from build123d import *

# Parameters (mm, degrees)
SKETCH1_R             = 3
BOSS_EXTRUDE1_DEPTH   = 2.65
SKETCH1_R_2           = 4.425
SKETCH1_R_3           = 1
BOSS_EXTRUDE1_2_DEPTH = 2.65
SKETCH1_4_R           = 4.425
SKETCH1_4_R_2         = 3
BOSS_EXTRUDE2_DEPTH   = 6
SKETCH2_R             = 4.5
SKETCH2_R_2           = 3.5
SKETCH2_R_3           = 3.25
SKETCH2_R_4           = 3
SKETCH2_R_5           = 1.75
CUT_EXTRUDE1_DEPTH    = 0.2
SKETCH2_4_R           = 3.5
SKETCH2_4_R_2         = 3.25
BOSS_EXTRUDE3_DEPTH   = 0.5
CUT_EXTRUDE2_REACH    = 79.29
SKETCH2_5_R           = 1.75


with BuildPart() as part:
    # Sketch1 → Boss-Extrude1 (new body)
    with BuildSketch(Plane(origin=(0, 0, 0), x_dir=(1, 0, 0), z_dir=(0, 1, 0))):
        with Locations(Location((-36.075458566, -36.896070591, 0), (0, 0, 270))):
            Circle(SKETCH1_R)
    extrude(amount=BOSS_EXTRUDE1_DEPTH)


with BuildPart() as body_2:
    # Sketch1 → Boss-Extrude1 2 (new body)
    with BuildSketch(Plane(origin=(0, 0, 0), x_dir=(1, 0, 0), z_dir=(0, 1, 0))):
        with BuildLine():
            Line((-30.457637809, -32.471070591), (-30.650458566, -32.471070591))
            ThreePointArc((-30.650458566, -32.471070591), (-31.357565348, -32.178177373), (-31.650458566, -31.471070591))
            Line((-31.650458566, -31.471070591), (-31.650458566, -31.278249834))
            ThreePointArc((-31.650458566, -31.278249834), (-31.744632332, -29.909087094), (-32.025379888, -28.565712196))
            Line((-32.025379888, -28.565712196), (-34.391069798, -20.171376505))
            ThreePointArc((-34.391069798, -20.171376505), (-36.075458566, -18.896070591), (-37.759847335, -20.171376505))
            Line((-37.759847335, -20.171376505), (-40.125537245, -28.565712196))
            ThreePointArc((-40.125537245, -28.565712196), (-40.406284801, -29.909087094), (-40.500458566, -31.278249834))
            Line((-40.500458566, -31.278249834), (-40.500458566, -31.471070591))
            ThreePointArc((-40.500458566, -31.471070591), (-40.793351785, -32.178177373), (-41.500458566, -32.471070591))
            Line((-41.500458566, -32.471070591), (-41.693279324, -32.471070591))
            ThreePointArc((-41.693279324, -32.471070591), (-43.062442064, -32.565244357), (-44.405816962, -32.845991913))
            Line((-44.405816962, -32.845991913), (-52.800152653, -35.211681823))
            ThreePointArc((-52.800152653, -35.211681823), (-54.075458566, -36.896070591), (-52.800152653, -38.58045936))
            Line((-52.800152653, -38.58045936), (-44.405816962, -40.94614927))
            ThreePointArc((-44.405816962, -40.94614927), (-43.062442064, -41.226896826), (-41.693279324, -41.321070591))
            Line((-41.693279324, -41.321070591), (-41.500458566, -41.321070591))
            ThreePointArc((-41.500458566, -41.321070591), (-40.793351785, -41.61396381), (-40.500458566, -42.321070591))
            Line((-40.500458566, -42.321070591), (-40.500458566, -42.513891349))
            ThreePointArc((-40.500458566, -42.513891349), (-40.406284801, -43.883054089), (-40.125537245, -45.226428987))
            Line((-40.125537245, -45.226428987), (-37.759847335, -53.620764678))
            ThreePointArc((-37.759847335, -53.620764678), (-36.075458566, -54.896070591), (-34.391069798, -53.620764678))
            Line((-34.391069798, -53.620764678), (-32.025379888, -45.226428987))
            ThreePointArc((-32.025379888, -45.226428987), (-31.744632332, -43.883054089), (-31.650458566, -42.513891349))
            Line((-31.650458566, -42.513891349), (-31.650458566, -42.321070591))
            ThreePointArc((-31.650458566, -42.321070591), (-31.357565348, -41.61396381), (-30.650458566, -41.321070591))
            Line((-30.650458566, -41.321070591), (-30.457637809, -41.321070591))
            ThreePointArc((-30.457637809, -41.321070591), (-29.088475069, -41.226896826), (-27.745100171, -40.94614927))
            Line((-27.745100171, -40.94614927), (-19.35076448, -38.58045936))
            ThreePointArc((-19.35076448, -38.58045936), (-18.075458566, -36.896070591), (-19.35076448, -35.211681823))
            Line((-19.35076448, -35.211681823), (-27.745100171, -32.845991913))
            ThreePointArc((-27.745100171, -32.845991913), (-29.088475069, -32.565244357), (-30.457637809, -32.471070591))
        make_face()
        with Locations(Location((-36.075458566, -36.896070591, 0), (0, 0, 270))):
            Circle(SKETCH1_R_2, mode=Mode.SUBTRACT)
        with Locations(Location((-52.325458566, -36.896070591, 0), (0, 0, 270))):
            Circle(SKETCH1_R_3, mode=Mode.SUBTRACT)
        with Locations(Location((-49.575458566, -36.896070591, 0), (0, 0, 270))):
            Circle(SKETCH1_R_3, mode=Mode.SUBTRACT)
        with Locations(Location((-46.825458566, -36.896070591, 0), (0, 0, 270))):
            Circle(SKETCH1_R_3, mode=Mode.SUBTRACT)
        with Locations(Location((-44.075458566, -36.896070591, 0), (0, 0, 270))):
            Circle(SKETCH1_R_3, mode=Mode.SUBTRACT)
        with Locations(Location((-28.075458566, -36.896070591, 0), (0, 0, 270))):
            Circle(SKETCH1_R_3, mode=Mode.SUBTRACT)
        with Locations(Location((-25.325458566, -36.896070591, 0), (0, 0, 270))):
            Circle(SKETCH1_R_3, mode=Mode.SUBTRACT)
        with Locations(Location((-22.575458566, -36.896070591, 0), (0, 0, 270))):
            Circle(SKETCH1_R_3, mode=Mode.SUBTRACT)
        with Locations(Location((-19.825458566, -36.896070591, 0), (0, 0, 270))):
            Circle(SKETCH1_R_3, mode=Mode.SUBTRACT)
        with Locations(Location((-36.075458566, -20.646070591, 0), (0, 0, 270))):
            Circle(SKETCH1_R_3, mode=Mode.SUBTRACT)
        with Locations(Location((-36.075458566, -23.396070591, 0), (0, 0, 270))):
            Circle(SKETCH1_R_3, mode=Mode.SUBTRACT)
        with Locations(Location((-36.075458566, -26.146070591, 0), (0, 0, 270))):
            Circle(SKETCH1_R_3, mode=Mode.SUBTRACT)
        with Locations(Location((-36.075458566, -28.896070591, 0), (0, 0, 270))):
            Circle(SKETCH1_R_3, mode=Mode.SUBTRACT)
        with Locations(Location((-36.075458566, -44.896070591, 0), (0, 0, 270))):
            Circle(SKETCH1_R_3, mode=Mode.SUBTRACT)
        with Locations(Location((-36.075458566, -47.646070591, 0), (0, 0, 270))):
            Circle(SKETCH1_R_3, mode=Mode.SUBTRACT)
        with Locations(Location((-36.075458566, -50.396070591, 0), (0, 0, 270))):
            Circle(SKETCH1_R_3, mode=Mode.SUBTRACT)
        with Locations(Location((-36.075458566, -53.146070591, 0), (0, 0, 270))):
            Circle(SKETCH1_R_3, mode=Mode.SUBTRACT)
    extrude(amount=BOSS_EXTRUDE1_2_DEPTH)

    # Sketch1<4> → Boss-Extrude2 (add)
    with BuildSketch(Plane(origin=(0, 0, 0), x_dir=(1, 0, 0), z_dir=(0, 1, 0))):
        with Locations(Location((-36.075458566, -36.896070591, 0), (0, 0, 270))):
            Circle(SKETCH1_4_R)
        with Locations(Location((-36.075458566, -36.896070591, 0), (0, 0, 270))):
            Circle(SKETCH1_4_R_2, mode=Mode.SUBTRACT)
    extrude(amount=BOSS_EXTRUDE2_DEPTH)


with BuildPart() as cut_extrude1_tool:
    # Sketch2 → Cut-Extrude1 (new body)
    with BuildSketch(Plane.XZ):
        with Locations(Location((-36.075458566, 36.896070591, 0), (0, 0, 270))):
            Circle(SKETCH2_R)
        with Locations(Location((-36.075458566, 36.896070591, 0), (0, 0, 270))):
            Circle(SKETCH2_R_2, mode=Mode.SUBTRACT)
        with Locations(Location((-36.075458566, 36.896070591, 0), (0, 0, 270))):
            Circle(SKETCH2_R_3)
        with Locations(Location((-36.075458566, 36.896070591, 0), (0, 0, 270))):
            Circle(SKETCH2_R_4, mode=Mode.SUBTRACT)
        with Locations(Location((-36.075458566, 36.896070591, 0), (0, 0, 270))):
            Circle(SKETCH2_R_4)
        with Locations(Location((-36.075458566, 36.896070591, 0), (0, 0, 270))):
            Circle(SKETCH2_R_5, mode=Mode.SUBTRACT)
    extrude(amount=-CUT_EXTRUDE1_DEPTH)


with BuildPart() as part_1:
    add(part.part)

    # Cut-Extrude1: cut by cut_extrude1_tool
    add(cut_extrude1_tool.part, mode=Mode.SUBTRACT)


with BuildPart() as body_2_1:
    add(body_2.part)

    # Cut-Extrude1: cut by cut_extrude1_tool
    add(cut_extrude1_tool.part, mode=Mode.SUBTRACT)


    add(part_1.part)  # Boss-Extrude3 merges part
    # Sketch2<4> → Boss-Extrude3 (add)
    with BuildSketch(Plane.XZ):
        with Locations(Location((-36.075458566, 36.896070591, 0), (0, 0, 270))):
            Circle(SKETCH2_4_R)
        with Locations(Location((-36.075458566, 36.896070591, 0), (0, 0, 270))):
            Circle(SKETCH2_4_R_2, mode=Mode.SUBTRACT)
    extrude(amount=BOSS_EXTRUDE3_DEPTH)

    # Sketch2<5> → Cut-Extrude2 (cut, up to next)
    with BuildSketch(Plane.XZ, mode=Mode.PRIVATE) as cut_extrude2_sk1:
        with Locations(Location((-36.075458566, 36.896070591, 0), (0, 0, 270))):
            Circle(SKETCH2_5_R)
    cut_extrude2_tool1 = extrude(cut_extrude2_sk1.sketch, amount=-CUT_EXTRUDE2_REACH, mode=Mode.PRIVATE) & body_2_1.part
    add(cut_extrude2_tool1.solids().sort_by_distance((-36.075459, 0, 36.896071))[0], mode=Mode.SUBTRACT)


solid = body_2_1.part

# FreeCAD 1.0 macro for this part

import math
import FreeCAD as App
import Part
import Sketcher
from FreeCAD import Vector

doc = App.newDocument("Part")
body = doc.addObject("PartDesign::Body", "Body")

# Sketch on XZ plane
sketch1 = body.newObject("Sketcher::SketchObject", "Sketch")
sketch1.AttachmentSupport = (doc.getObject("XZ_Plane"), [""])
sketch1.MapMode = "FlatFace"
sketch1.addGeometry(Part.Circle(Vector(-36.1, 36.9, 0), Vector(0, 0, 1), 3), False)
sketch1.addConstraint(Sketcher.Constraint("Diameter", 0, 6.0))
sketch1.addConstraint(Sketcher.Constraint("DistanceX", 0, 3, -1, 1, 36.075459))
sketch1.addConstraint(Sketcher.Constraint("DistanceY", -1, 1, 0, 3, 36.896071))
pad1 = body.newObject("PartDesign::Pad", "Pad")
pad1.Profile = sketch1
pad1.Length = 2.65
pad1.Reversed = True
body2 = doc.addObject("PartDesign::Body", "Body001")

# Sketch on XZ plane
sketch2 = body2.newObject("Sketcher::SketchObject", "Sketch001")
sketch2.AttachmentSupport = (doc.getObject("XZ_Plane001"), [""])
sketch2.MapMode = "FlatFace"
sketch2.addGeometry(Part.LineSegment(Vector(-30.46, 32.47, 0), Vector(-30.65, 32.47, 0)), False)
sketch2.addGeometry(Part.ArcOfCircle(Part.Circle(Vector(-30.65, 31.47, 0), Vector(0, 0, 1), 1), math.radians(90), math.radians(180)), False)
sketch2.addGeometry(Part.LineSegment(Vector(-31.65, 31.47, 0), Vector(-31.65, 31.28, 0)), False)
sketch2.addGeometry(Part.ArcOfCircle(Part.Circle(Vector(-41.65, 31.28, 0), Vector(0, 0, 1), 10), math.radians(-15.74), math.radians(0)), False)
sketch2.addGeometry(Part.LineSegment(Vector(-32.03, 28.57, 0), Vector(-34.39, 20.17, 0)), False)
sketch2.addGeometry(Part.ArcOfCircle(Part.Circle(Vector(-36.08, 20.65, 0), Vector(0, 0, 1), 1.75), math.radians(-164), math.radians(-16)), False)
sketch2.addGeometry(Part.LineSegment(Vector(-37.76, 20.17, 0), Vector(-40.13, 28.57, 0)), False)
sketch2.addGeometry(Part.ArcOfCircle(Part.Circle(Vector(-30.5, 31.28, 0), Vector(0, 0, 1), 10), math.radians(180), math.radians(195.74)), False)
sketch2.addGeometry(Part.LineSegment(Vector(-40.5, 31.28, 0), Vector(-40.5, 31.47, 0)), False)
sketch2.addGeometry(Part.ArcOfCircle(Part.Circle(Vector(-41.5, 31.47, 0), Vector(0, 0, 1), 1), math.radians(0), math.radians(90)), False)
sketch2.addGeometry(Part.LineSegment(Vector(-41.5, 32.47, 0), Vector(-41.69, 32.47, 0)), False)
sketch2.addGeometry(Part.ArcOfCircle(Part.Circle(Vector(-41.69, 42.47, 0), Vector(0, 0, 1), 10), math.radians(-105.74), math.radians(-90)), False)
sketch2.addGeometry(Part.LineSegment(Vector(-44.41, 32.85, 0), Vector(-52.8, 35.21, 0)), False)
sketch2.addGeometry(Part.ArcOfCircle(Part.Circle(Vector(-52.33, 36.9, 0), Vector(0, 0, 1), 1.75), math.radians(106), math.radians(254)), False)
sketch2.addGeometry(Part.LineSegment(Vector(-52.8, 38.58, 0), Vector(-44.41, 40.95, 0)), False)
sketch2.addGeometry(Part.ArcOfCircle(Part.Circle(Vector(-41.69, 31.32, 0), Vector(0, 0, 1), 10), math.radians(90), math.radians(105.74)), False)
sketch2.addGeometry(Part.LineSegment(Vector(-41.69, 41.32, 0), Vector(-41.5, 41.32, 0)), False)
sketch2.addGeometry(Part.ArcOfCircle(Part.Circle(Vector(-41.5, 42.32, 0), Vector(0, 0, 1), 1), math.radians(-90), math.radians(0)), False)
sketch2.addGeometry(Part.LineSegment(Vector(-40.5, 42.32, 0), Vector(-40.5, 42.51, 0)), False)
sketch2.addGeometry(Part.ArcOfCircle(Part.Circle(Vector(-30.5, 42.51, 0), Vector(0, 0, 1), 10), math.radians(164.26), math.radians(180)), False)
sketch2.addGeometry(Part.LineSegment(Vector(-40.13, 45.23, 0), Vector(-37.76, 53.62, 0)), False)
sketch2.addGeometry(Part.ArcOfCircle(Part.Circle(Vector(-36.08, 53.15, 0), Vector(0, 0, 1), 1.75), math.radians(16), math.radians(164)), False)
sketch2.addGeometry(Part.LineSegment(Vector(-34.39, 53.62, 0), Vector(-32.03, 45.23, 0)), False)
sketch2.addGeometry(Part.ArcOfCircle(Part.Circle(Vector(-41.65, 42.51, 0), Vector(0, 0, 1), 10), math.radians(0), math.radians(15.74)), False)
sketch2.addGeometry(Part.LineSegment(Vector(-31.65, 42.51, 0), Vector(-31.65, 42.32, 0)), False)
sketch2.addGeometry(Part.ArcOfCircle(Part.Circle(Vector(-30.65, 42.32, 0), Vector(0, 0, 1), 1), math.radians(180), math.radians(270)), False)
sketch2.addGeometry(Part.LineSegment(Vector(-30.65, 41.32, 0), Vector(-30.46, 41.32, 0)), False)
sketch2.addGeometry(Part.ArcOfCircle(Part.Circle(Vector(-30.46, 31.32, 0), Vector(0, 0, 1), 10), math.radians(74.26), math.radians(90)), False)
sketch2.addGeometry(Part.LineSegment(Vector(-27.75, 40.95, 0), Vector(-19.35, 38.58, 0)), False)
sketch2.addGeometry(Part.ArcOfCircle(Part.Circle(Vector(-19.83, 36.9, 0), Vector(0, 0, 1), 1.75), math.radians(-74), math.radians(74)), False)
sketch2.addGeometry(Part.LineSegment(Vector(-19.35, 35.21, 0), Vector(-27.75, 32.85, 0)), False)
sketch2.addGeometry(Part.ArcOfCircle(Part.Circle(Vector(-30.46, 42.47, 0), Vector(0, 0, 1), 10), math.radians(-90), math.radians(-74.26)), False)
sketch2.addGeometry(Part.Circle(Vector(-36.08, 53.15, 0), Vector(0, 0, 1), 1), False)
sketch2.addGeometry(Part.Circle(Vector(-36.08, 50.4, 0), Vector(0, 0, 1), 1), False)
sketch2.addGeometry(Part.Circle(Vector(-36.08, 47.65, 0), Vector(0, 0, 1), 1), False)
sketch2.addGeometry(Part.Circle(Vector(-36.08, 44.9, 0), Vector(0, 0, 1), 1), False)
sketch2.addGeometry(Part.Circle(Vector(-52.33, 36.9, 0), Vector(0, 0, 1), 1), False)
sketch2.addGeometry(Part.Circle(Vector(-49.58, 36.9, 0), Vector(0, 0, 1), 1), False)
sketch2.addGeometry(Part.Circle(Vector(-46.83, 36.9, 0), Vector(0, 0, 1), 1), False)
sketch2.addGeometry(Part.Circle(Vector(-44.08, 36.9, 0), Vector(0, 0, 1), 1), False)
sketch2.addGeometry(Part.Circle(Vector(-36.08, 36.9, 0), Vector(0, 0, 1), 4.42), False)
sketch2.addGeometry(Part.Circle(Vector(-28.08, 36.9, 0), Vector(0, 0, 1), 1), False)
sketch2.addGeometry(Part.Circle(Vector(-36.08, 28.9, 0), Vector(0, 0, 1), 1), False)
sketch2.addGeometry(Part.Circle(Vector(-25.33, 36.9, 0), Vector(0, 0, 1), 1), False)
sketch2.addGeometry(Part.Circle(Vector(-22.58, 36.9, 0), Vector(0, 0, 1), 1), False)
sketch2.addGeometry(Part.Circle(Vector(-19.83, 36.9, 0), Vector(0, 0, 1), 1), False)
sketch2.addGeometry(Part.Circle(Vector(-36.08, 26.15, 0), Vector(0, 0, 1), 1), False)
sketch2.addGeometry(Part.Circle(Vector(-36.08, 23.4, 0), Vector(0, 0, 1), 1), False)
sketch2.addGeometry(Part.Circle(Vector(-36.08, 20.65, 0), Vector(0, 0, 1), 1), False)
sketch2.addConstraint(Sketcher.Constraint("Tangent", 0, 2, 1, 1))
sketch2.addConstraint(Sketcher.Constraint("Tangent", 1, 2, 2, 1))
sketch2.addConstraint(Sketcher.Constraint("Tangent", 2, 2, 3, 2))
sketch2.addConstraint(Sketcher.Constraint("Tangent", 3, 1, 4, 1))
sketch2.addConstraint(Sketcher.Constraint("Tangent", 4, 2, 5, 2))
sketch2.addConstraint(Sketcher.Constraint("Tangent", 5, 1, 6, 1))
sketch2.addConstraint(Sketcher.Constraint("Tangent", 6, 2, 7, 2))
sketch2.addConstraint(Sketcher.Constraint("Tangent", 7, 1, 8, 1))
sketch2.addConstraint(Sketcher.Constraint("Tangent", 8, 2, 9, 1))
sketch2.addConstraint(Sketcher.Constraint("Tangent", 9, 2, 10, 1))
sketch2.addConstraint(Sketcher.Constraint("Tangent", 10, 2, 11, 2))
sketch2.addConstraint(Sketcher.Constraint("Tangent", 11, 1, 12, 1))
sketch2.addConstraint(Sketcher.Constraint("Tangent", 12, 2, 13, 2))
sketch2.addConstraint(Sketcher.Constraint("Tangent", 13, 1, 14, 1))
sketch2.addConstraint(Sketcher.Constraint("Tangent", 14, 2, 15, 2))
sketch2.addConstraint(Sketcher.Constraint("Tangent", 15, 1, 16, 1))
sketch2.addConstraint(Sketcher.Constraint("Tangent", 16, 2, 17, 1))
sketch2.addConstraint(Sketcher.Constraint("Tangent", 17, 2, 18, 1))
sketch2.addConstraint(Sketcher.Constraint("Tangent", 18, 2, 19, 2))
sketch2.addConstraint(Sketcher.Constraint("Tangent", 19, 1, 20, 1))
sketch2.addConstraint(Sketcher.Constraint("Tangent", 20, 2, 21, 2))
sketch2.addConstraint(Sketcher.Constraint("Tangent", 21, 1, 22, 1))
sketch2.addConstraint(Sketcher.Constraint("Tangent", 22, 2, 23, 2))
sketch2.addConstraint(Sketcher.Constraint("Tangent", 23, 1, 24, 1))
sketch2.addConstraint(Sketcher.Constraint("Tangent", 24, 2, 25, 1))
sketch2.addConstraint(Sketcher.Constraint("Tangent", 25, 2, 26, 1))
sketch2.addConstraint(Sketcher.Constraint("Tangent", 26, 2, 27, 2))
sketch2.addConstraint(Sketcher.Constraint("Tangent", 27, 1, 28, 1))
sketch2.addConstraint(Sketcher.Constraint("Tangent", 28, 2, 29, 2))
sketch2.addConstraint(Sketcher.Constraint("Tangent", 29, 1, 30, 1))
sketch2.addConstraint(Sketcher.Constraint("Tangent", 30, 2, 31, 2))
sketch2.addConstraint(Sketcher.Constraint("Tangent", 31, 1, 0, 1))
sketch2.addConstraint(Sketcher.Constraint("Horizontal", 0))
sketch2.addConstraint(Sketcher.Constraint("Vertical", 2))
sketch2.addConstraint(Sketcher.Constraint("Vertical", 8))
sketch2.addConstraint(Sketcher.Constraint("Horizontal", 10))
sketch2.addConstraint(Sketcher.Constraint("Horizontal", 16))
sketch2.addConstraint(Sketcher.Constraint("Vertical", 18))
sketch2.addConstraint(Sketcher.Constraint("Vertical", 24))
sketch2.addConstraint(Sketcher.Constraint("Horizontal", 26))
sketch2.addConstraint(Sketcher.Constraint("Coincident", 32, 3, 21, 3))
sketch2.addConstraint(Sketcher.Constraint("Coincident", 36, 3, 13, 3))
sketch2.addConstraint(Sketcher.Constraint("Coincident", 45, 3, 29, 3))
sketch2.addConstraint(Sketcher.Constraint("Coincident", 48, 3, 5, 3))
sketch2.addConstraint(Sketcher.Constraint("Equal", 3, 7))
sketch2.addConstraint(Sketcher.Constraint("Equal", 1, 9))
sketch2.addConstraint(Sketcher.Constraint("Equal", 7, 11))
sketch2.addConstraint(Sketcher.Constraint("Equal", 5, 13))
sketch2.addConstraint(Sketcher.Constraint("Equal", 11, 15))
sketch2.addConstraint(Sketcher.Constraint("Equal", 9, 17))
sketch2.addConstraint(Sketcher.Constraint("Equal", 15, 19))
sketch2.addConstraint(Sketcher.Constraint("Equal", 13, 21))
sketch2.addConstraint(Sketcher.Constraint("Equal", 19, 23))
sketch2.addConstraint(Sketcher.Constraint("Equal", 17, 25))
sketch2.addConstraint(Sketcher.Constraint("Equal", 23, 27))
sketch2.addConstraint(Sketcher.Constraint("Equal", 21, 29))
sketch2.addConstraint(Sketcher.Constraint("Equal", 27, 31))
sketch2.addConstraint(Sketcher.Constraint("Equal", 25, 32))
sketch2.addConstraint(Sketcher.Constraint("Equal", 32, 33))
sketch2.addConstraint(Sketcher.Constraint("Equal", 33, 34))
sketch2.addConstraint(Sketcher.Constraint("Equal", 34, 35))
sketch2.addConstraint(Sketcher.Constraint("Equal", 35, 36))
sketch2.addConstraint(Sketcher.Constraint("Equal", 36, 37))
sketch2.addConstraint(Sketcher.Constraint("Equal", 37, 38))
sketch2.addConstraint(Sketcher.Constraint("Equal", 38, 39))
sketch2.addConstraint(Sketcher.Constraint("Equal", 39, 41))
sketch2.addConstraint(Sketcher.Constraint("Equal", 41, 42))
sketch2.addConstraint(Sketcher.Constraint("Equal", 42, 43))
sketch2.addConstraint(Sketcher.Constraint("Equal", 43, 44))
sketch2.addConstraint(Sketcher.Constraint("Equal", 44, 45))
sketch2.addConstraint(Sketcher.Constraint("Equal", 45, 46))
sketch2.addConstraint(Sketcher.Constraint("Equal", 46, 47))
sketch2.addConstraint(Sketcher.Constraint("Equal", 47, 48))
sketch2.addConstraint(Sketcher.Constraint("Perpendicular", 4, 12))
sketch2.addConstraint(Sketcher.Constraint("Perpendicular", 6, 14))
sketch2.addConstraint(Sketcher.Constraint("Perpendicular", 12, 20))
sketch2.addConstraint(Sketcher.Constraint("Perpendicular", 14, 22))
sketch2.addConstraint(Sketcher.Constraint("Perpendicular", 20, 28))
sketch2.addConstraint(Sketcher.Constraint("Perpendicular", 22, 30))
sketch2.addConstraint(Sketcher.Constraint("Horizontal", 3, 3, 7, 3))
sketch2.addConstraint(Sketcher.Constraint("Horizontal", 1, 3, 9, 3))
sketch2.addConstraint(Sketcher.Constraint("Horizontal", 19, 3, 23, 3))
sketch2.addConstraint(Sketcher.Constraint("Horizontal", 17, 3, 25, 3))
sketch2.addConstraint(Sketcher.Constraint("Horizontal", 13, 3, 29, 3))
sketch2.addConstraint(Sketcher.Constraint("Horizontal", 36, 3, 37, 3))
sketch2.addConstraint(Sketcher.Constraint("Horizontal", 37, 3, 38, 3))
sketch2.addConstraint(Sketcher.Constraint("Horizontal", 38, 3, 39, 3))
sketch2.addConstraint(Sketcher.Constraint("Horizontal", 39, 3, 40, 3))
sketch2.addConstraint(Sketcher.Constraint("Horizontal", 40, 3, 41, 3))
sketch2.addConstraint(Sketcher.Constraint("Horizontal", 41, 3, 43, 3))
sketch2.addConstraint(Sketcher.Constraint("Horizontal", 43, 3, 44, 3))
sketch2.addConstraint(Sketcher.Constraint("Horizontal", 4, 2, 5, 1))
sketch2.addConstraint(Sketcher.Constraint("Vertical", 11, 3, 15, 3))
sketch2.addConstraint(Sketcher.Constraint("Vertical", 9, 3, 17, 3))
sketch2.addConstraint(Sketcher.Constraint("Vertical", 5, 3, 21, 3))
sketch2.addConstraint(Sketcher.Constraint("Vertical", 32, 3, 33, 3))
sketch2.addConstraint(Sketcher.Constraint("Vertical", 33, 3, 34, 3))
sketch2.addConstraint(Sketcher.Constraint("Vertical", 34, 3, 35, 3))
sketch2.addConstraint(Sketcher.Constraint("Vertical", 35, 3, 40, 3))
sketch2.addConstraint(Sketcher.Constraint("Vertical", 40, 3, 42, 3))
sketch2.addConstraint(Sketcher.Constraint("Vertical", 42, 3, 46, 3))
sketch2.addConstraint(Sketcher.Constraint("Vertical", 46, 3, 47, 3))
sketch2.addConstraint(Sketcher.Constraint("Equal", 0, 10))
sketch2.addConstraint(Sketcher.Constraint("Equal", 26, 2))
sketch2.addConstraint(Sketcher.Constraint("Equal", 8, 18))
sketch2.addConstraint(Sketcher.Constraint("Equal", 6, 12))
sketch2.addConstraint(Sketcher.Constraint("Diameter", 32, 2.0))
sketch2.addConstraint(Sketcher.Constraint("Radius", 3, 10.0))
sketch2.addConstraint(Sketcher.Constraint("Diameter", 40, 8.85))
sketch2.addConstraint(Sketcher.Constraint("Radius", 5, 1.75))
sketch2.addConstraint(Sketcher.Constraint("DistanceX", 0, 2, 0, 1, 0.192821))
sketch2.addConstraint(Sketcher.Constraint("DistanceX", 27, 1, -1, 1, 27.7451))
sketch2.addConstraint(Sketcher.Constraint("DistanceX", 1, 3, -1, 1, 30.650459))
sketch2.addConstraint(Sketcher.Constraint("DistanceY", -1, 1, 1, 3, 31.471071))
sketch2.addConstraint(Sketcher.Constraint("DistanceX", 5, 3, -1, 1, 36.075459))
sketch2.addConstraint(Sketcher.Constraint("DistanceY", -1, 1, 33, 3, 50.396071))
sketch2.addConstraint(Sketcher.Constraint("DistanceY", -1, 1, 34, 3, 47.646071))
sketch2.addConstraint(Sketcher.Constraint("DistanceY", -1, 1, 35, 3, 44.896071))
sketch2.addConstraint(Sketcher.Constraint("DistanceX", 37, 3, -1, 1, 49.575459))
sketch2.addConstraint(Sketcher.Constraint("DistanceX", 38, 3, -1, 1, 46.825459))
sketch2.addConstraint(Sketcher.Constraint("DistanceX", 39, 3, -1, 1, 44.075459))
sketch2.addConstraint(Sketcher.Constraint("DistanceX", 41, 3, -1, 1, 28.075459))
sketch2.addConstraint(Sketcher.Constraint("DistanceY", -1, 1, 42, 3, 28.896071))
sketch2.addConstraint(Sketcher.Constraint("DistanceX", 43, 3, -1, 1, 25.325459))
sketch2.addConstraint(Sketcher.Constraint("DistanceX", 44, 3, -1, 1, 22.575459))
sketch2.addConstraint(Sketcher.Constraint("DistanceY", -1, 1, 46, 3, 26.146071))
sketch2.addConstraint(Sketcher.Constraint("DistanceY", -1, 1, 47, 3, 23.396071))
pad2 = body2.newObject("PartDesign::Pad", "Pad001")
pad2.Profile = sketch2
pad2.Length = 2.65
pad2.Reversed = True

# Sketch on XZ plane
sketch3 = body2.newObject("Sketcher::SketchObject", "Sketch002")
sketch3.AttachmentSupport = (doc.getObject("XZ_Plane001"), [""])
sketch3.MapMode = "FlatFace"
sketch3.addGeometry(Part.Circle(Vector(-36.1, 36.9, 0), Vector(0, 0, 1), 4.4), False)
sketch3.addGeometry(Part.Circle(Vector(-36.1, 36.9, 0), Vector(0, 0, 1), 3), False)
sketch3.addConstraint(Sketcher.Constraint("Coincident", 1, 3, 0, 3))
sketch3.addConstraint(Sketcher.Constraint("Diameter", 1, 6.0))
sketch3.addConstraint(Sketcher.Constraint("Diameter", 0, 8.85))
sketch3.addConstraint(Sketcher.Constraint("DistanceX", 0, 3, -1, 1, 36.075459))
sketch3.addConstraint(Sketcher.Constraint("DistanceY", -1, 1, 0, 3, 36.896071))
pad3 = body2.newObject("PartDesign::Pad", "Pad002")
pad3.Profile = sketch3
pad3.Length = 6
pad3.Reversed = True
body3 = doc.addObject("PartDesign::Body", "Body002")
body3.AllowCompound = True

# Sketch on XZ plane
sketch4 = body3.newObject("Sketcher::SketchObject", "Sketch003")
sketch4.AttachmentSupport = (doc.getObject("XZ_Plane002"), [""])
sketch4.MapMode = "FlatFace"
sketch4.addGeometry(Part.Circle(Vector(-36.1, 36.9, 0), Vector(0, 0, 1), 4.5), False)
sketch4.addGeometry(Part.Circle(Vector(-36.1, 36.9, 0), Vector(0, 0, 1), 3.5), False)
sketch4.addGeometry(Part.Circle(Vector(-36.1, 36.9, 0), Vector(0, 0, 1), 3.2), False)
sketch4.addGeometry(Part.Circle(Vector(-36.1, 36.9, 0), Vector(0, 0, 1), 1.8), False)
sketch4.addConstraint(Sketcher.Constraint("Coincident", 1, 3, 0, 3))
sketch4.addConstraint(Sketcher.Constraint("Coincident", 2, 3, 0, 3))
sketch4.addConstraint(Sketcher.Constraint("Coincident", 3, 3, 0, 3))
sketch4.addConstraint(Sketcher.Constraint("Diameter", 0, 9.0))
sketch4.addConstraint(Sketcher.Constraint("Diameter", 1, 7.0))
sketch4.addConstraint(Sketcher.Constraint("Diameter", 2, 6.5))
sketch4.addConstraint(Sketcher.Constraint("Diameter", 3, 3.5))
sketch4.addConstraint(Sketcher.Constraint("DistanceX", 0, 3, -1, 1, 36.075459))
sketch4.addConstraint(Sketcher.Constraint("DistanceY", -1, 1, 0, 3, 36.896071))
pad4 = body3.newObject("PartDesign::Pad", "Pad003")
pad4.Profile = sketch4
pad4.Length = 0.2
pad4.Reversed = True
doc.recompute()

body4 = doc.addObject("PartDesign::Body", "Body003")
body4.BaseFeature = body3
boolean = body.newObject("PartDesign::Boolean", "Boolean")
boolean.Type = "Cut"
boolean.addObjects([body4])
doc.recompute()

boolean2 = body2.newObject("PartDesign::Boolean", "Boolean001")
boolean2.Type = "Cut"
boolean2.addObjects([body3])
doc.recompute()

boolean3 = body2.newObject("PartDesign::Boolean", "Boolean002")
boolean3.Type = "Fuse"
boolean3.addObjects([body])

# Sketch on XZ plane
sketch5 = body2.newObject("Sketcher::SketchObject", "Sketch004")
sketch5.AttachmentSupport = (doc.getObject("XZ_Plane001"), [""])
sketch5.MapMode = "FlatFace"
sketch5.addGeometry(Part.Circle(Vector(-36.1, 36.9, 0), Vector(0, 0, 1), 3.5), False)
sketch5.addGeometry(Part.Circle(Vector(-36.1, 36.9, 0), Vector(0, 0, 1), 3.2), False)
sketch5.addConstraint(Sketcher.Constraint("Coincident", 1, 3, 0, 3))
sketch5.addConstraint(Sketcher.Constraint("Diameter", 0, 7.0))
sketch5.addConstraint(Sketcher.Constraint("Diameter", 1, 6.5))
sketch5.addConstraint(Sketcher.Constraint("DistanceX", 0, 3, -1, 1, 36.075459))
sketch5.addConstraint(Sketcher.Constraint("DistanceY", -1, 1, 0, 3, 36.896071))
pad5 = body2.newObject("PartDesign::Pad", "Pad004")
pad5.Profile = sketch5
pad5.Length = 0.5

# Sketch on XZ plane
sketch6 = body2.newObject("Sketcher::SketchObject", "Sketch005")
sketch6.AttachmentSupport = (doc.getObject("XZ_Plane001"), [""])
sketch6.MapMode = "FlatFace"
sketch6.addGeometry(Part.Circle(Vector(-36.1, 36.9, 0), Vector(0, 0, 1), 1.8), False)
sketch6.addConstraint(Sketcher.Constraint("Diameter", 0, 3.5))
sketch6.addConstraint(Sketcher.Constraint("DistanceX", 0, 3, -1, 1, 36.075459))
sketch6.addConstraint(Sketcher.Constraint("DistanceY", -1, 1, 0, 3, 36.896071))
pocket1 = body2.newObject("PartDesign::Pocket", "Pocket")
pocket1.Profile = sketch6
pocket1.Type = "UpToFirst"

doc.recompute()
